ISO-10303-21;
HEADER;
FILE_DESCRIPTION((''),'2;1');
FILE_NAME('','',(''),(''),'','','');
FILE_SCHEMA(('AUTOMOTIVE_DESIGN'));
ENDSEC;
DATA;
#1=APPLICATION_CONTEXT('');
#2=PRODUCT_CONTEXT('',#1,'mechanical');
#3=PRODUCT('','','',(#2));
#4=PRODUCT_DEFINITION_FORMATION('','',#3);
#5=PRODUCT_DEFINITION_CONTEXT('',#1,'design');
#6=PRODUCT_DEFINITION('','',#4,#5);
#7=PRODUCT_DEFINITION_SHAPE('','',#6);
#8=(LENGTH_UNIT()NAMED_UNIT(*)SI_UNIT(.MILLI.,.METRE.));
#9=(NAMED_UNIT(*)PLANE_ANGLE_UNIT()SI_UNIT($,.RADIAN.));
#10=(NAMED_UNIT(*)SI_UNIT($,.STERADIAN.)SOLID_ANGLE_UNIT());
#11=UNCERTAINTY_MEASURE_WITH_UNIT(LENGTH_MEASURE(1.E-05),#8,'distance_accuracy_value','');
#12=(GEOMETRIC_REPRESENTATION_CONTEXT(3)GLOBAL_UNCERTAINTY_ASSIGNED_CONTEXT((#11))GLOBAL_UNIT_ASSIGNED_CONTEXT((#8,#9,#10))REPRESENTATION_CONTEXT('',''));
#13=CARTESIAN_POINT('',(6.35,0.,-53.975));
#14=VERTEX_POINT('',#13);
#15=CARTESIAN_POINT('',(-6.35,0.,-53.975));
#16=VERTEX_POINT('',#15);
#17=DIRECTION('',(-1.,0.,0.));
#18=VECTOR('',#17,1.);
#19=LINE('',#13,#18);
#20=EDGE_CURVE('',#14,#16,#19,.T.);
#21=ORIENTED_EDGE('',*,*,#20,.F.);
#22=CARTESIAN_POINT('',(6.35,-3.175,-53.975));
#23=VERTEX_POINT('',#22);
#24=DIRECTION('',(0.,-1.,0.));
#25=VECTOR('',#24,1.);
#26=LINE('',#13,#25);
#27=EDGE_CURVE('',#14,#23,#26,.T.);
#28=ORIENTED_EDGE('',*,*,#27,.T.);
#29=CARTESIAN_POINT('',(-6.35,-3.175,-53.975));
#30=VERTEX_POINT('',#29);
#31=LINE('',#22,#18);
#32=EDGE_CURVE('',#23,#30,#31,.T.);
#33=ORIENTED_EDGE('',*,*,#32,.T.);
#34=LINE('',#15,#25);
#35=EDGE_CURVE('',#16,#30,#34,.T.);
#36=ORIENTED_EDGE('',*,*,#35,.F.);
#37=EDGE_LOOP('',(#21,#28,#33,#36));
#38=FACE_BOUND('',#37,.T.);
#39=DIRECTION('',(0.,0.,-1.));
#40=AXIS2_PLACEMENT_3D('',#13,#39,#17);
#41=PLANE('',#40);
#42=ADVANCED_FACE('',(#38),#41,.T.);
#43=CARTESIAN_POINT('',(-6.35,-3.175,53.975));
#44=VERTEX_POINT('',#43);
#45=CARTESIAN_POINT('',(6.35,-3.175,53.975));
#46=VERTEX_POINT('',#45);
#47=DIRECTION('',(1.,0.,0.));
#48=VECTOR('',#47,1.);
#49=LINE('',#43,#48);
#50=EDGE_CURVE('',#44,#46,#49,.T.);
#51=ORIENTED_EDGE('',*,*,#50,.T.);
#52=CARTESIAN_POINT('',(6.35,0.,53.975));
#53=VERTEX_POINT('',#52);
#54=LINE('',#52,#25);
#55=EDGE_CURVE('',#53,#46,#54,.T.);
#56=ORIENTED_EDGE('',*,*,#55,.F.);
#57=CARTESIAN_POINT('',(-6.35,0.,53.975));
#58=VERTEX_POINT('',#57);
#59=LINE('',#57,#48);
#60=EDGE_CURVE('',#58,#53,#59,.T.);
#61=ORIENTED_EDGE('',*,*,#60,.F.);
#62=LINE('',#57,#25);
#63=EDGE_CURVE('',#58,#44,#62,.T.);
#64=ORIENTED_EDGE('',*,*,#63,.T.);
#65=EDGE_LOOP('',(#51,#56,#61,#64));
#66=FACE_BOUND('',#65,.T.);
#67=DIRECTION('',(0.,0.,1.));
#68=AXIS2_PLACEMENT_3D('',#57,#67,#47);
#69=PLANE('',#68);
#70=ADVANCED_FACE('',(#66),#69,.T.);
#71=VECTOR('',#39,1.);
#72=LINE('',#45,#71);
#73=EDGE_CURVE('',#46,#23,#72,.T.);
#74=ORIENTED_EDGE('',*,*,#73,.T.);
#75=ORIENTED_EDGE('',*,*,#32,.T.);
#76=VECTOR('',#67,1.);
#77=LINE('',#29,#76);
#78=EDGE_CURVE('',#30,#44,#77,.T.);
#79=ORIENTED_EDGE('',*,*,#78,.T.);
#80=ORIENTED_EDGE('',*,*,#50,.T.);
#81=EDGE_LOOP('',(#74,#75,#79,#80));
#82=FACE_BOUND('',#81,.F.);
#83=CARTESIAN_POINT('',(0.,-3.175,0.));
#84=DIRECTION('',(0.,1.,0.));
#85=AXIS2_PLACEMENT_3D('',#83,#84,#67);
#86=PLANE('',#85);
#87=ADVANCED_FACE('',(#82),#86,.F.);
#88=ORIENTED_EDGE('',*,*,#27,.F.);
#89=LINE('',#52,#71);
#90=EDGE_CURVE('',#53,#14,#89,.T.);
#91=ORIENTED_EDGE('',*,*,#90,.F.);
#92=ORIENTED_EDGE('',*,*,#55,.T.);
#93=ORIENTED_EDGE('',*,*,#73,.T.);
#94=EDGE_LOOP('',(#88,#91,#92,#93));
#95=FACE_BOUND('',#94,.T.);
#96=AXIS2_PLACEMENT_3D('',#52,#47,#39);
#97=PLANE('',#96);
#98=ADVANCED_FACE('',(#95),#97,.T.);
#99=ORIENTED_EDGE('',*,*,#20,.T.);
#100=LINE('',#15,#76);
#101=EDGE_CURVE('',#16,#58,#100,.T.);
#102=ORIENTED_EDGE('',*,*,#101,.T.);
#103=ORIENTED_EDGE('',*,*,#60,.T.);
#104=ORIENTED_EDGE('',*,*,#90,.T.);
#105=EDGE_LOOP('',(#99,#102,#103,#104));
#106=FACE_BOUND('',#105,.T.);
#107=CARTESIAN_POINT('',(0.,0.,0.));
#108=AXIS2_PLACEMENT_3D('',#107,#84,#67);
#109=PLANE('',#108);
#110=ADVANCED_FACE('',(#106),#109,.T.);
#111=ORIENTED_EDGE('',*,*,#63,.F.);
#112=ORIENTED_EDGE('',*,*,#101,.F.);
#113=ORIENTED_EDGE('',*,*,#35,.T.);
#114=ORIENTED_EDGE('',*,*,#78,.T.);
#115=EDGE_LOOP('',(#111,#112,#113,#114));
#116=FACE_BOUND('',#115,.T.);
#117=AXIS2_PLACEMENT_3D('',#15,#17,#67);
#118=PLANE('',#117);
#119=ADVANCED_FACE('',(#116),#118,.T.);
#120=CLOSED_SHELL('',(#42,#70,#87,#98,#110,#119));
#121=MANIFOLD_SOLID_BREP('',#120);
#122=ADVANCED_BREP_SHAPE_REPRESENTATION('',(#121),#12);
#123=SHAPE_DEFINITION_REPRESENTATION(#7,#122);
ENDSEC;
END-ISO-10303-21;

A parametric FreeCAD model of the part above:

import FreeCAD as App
import Part
import Sketcher
from FreeCAD import Vector
Q = App.Units.Quantity


def add_polygon(sketch, points):
    """Adds a closed chain of lines whose ends are joined by coincident constraints."""
    first, n = sketch.GeometryCount, len(points)
    for a, b in zip(points, points[1:] + points[:1]):
        sketch.addGeometry(Part.LineSegment(App.Vector(*a, 0), App.Vector(*b, 0)), False)
    for i in range(n):
        sketch.addConstraint(Sketcher.Constraint("Coincident", first + i, 2, first + (i + 1) % n, 1))

doc = App.newDocument("Part")
body = doc.addObject("PartDesign::Body", "Body")

# Sketch on XZ plane
sketch1 = body.newObject("Sketcher::SketchObject", "Sketch")
sketch1.AttachmentSupport = (doc.getObject("XZ_Plane"), [""])
sketch1.MapMode = "FlatFace"
add_polygon(sketch1, [(6, 54), (-6, 54), (-6, -54), (6, -54)])  # lines 0-3
sketch1.addConstraint([
    Sketcher.Constraint("Horizontal", 0),
    Sketcher.Constraint("Vertical", 1),
    Sketcher.Constraint("Horizontal", 2),
    Sketcher.Constraint("Vertical", 3),
    Sketcher.Constraint("Symmetric", 0, 2, 2, 2, -1, 1),
    Sketcher.Constraint("DistanceX", 0, 2, -1, 1, Q("0.25 in")),
    Sketcher.Constraint("DistanceY", 1, 2, 1, 1, Q("4.25 in")),
])
pad1 = body.newObject("PartDesign::Pad", "Pad")
pad1.Profile = sketch1
pad1.Length = Q("0.125 in")

doc.recompute()
